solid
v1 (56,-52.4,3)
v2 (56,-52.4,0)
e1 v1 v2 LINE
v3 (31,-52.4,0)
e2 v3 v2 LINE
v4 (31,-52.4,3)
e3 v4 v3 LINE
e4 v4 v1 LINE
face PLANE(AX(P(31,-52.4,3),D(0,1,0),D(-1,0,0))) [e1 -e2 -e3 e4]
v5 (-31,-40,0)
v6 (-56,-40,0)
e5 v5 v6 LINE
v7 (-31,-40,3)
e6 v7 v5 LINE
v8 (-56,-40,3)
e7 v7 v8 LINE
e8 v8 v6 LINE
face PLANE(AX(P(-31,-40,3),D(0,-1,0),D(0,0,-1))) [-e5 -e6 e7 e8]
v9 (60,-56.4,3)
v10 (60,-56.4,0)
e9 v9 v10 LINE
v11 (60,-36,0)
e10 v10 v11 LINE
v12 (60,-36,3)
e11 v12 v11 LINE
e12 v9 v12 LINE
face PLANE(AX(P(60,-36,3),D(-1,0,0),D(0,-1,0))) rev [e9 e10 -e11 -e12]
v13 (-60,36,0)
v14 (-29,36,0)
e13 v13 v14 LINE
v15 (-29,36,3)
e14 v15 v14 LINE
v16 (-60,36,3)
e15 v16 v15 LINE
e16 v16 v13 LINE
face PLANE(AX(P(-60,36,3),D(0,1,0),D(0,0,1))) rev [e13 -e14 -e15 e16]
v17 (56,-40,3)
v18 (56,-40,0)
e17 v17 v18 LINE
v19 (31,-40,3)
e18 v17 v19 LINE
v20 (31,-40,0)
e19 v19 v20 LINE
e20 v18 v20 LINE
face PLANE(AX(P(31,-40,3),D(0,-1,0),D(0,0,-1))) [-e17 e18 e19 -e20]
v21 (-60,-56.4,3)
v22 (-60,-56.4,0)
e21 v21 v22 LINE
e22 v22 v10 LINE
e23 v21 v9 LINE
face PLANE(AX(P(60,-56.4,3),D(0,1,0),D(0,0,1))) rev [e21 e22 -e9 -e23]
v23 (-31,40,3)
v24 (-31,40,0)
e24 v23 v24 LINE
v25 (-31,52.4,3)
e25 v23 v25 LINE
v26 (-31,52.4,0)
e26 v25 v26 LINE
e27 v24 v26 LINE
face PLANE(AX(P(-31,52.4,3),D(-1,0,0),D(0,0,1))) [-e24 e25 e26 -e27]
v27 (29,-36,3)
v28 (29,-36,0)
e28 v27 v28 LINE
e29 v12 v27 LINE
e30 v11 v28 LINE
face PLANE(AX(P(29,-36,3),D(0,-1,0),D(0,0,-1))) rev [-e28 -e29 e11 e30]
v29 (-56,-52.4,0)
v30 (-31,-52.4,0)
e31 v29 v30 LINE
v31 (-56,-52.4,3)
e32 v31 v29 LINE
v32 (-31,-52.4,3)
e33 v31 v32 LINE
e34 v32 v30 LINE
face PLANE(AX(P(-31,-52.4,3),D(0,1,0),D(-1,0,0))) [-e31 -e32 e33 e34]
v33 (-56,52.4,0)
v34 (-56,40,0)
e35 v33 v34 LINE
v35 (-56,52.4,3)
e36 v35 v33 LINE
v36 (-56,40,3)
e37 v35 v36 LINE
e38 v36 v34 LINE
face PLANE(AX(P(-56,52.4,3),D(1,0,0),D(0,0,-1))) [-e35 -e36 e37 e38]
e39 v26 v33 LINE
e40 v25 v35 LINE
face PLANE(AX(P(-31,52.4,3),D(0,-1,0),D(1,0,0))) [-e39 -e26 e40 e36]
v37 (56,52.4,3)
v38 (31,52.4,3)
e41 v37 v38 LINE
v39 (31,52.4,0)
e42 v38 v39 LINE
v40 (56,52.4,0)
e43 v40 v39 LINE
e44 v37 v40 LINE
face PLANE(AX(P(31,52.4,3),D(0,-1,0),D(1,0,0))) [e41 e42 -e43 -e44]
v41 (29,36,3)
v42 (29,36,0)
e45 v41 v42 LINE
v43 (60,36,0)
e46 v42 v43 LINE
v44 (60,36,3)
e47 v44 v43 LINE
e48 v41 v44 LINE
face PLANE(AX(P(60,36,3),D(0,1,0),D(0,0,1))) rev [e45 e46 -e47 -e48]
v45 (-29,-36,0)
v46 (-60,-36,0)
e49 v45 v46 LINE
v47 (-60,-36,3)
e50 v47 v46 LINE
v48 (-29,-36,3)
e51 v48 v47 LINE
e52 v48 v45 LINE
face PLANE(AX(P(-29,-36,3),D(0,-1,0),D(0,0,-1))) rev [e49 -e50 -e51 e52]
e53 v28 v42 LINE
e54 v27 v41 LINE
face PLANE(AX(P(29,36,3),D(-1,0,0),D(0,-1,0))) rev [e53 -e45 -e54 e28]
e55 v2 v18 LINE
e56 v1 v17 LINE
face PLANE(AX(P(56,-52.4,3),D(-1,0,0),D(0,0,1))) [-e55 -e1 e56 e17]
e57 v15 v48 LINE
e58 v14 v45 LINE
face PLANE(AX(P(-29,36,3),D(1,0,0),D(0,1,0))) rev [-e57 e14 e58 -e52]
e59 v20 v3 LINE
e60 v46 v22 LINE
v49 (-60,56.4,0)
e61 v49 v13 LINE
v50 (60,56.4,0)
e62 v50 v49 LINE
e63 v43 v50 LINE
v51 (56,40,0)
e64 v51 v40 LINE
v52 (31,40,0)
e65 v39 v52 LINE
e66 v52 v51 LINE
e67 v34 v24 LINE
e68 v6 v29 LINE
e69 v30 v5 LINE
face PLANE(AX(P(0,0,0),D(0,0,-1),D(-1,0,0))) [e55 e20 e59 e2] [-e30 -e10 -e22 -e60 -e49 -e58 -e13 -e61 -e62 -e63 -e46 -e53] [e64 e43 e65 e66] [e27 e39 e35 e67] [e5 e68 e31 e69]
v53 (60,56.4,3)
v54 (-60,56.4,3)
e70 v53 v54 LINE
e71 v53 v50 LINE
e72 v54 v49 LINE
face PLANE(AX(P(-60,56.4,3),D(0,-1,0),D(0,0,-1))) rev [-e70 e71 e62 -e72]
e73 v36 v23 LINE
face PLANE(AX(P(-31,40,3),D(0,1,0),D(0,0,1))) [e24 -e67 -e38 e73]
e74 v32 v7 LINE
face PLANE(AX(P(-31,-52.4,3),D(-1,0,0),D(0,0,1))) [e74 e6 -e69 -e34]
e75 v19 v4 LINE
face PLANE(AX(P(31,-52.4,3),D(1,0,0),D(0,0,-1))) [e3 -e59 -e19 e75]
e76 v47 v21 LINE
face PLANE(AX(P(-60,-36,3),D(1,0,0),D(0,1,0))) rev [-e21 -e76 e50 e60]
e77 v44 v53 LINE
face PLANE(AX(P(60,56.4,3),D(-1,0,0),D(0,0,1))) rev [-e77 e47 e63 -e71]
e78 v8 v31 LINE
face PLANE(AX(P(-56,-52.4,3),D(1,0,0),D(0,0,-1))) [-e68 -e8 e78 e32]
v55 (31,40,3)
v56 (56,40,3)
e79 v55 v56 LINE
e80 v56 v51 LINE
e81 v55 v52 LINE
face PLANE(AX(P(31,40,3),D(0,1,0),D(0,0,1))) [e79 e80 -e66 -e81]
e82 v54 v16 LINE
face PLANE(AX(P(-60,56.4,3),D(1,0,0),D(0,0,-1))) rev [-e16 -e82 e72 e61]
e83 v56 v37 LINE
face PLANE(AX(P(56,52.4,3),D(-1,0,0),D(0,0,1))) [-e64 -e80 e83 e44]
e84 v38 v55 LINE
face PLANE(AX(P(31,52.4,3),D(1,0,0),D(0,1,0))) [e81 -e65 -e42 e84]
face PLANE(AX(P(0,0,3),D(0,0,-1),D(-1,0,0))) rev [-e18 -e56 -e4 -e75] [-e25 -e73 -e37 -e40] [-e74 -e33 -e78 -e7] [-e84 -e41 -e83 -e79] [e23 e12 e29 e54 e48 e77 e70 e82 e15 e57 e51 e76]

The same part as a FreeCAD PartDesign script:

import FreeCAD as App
import Part
import Sketcher
from FreeCAD import Vector

doc = App.newDocument("Part")
body = doc.addObject("PartDesign::Body", "Body")

# Sketch on XY plane
sketch1 = body.newObject("Sketcher::SketchObject", "Sketch")
sketch1.AttachmentSupport = (doc.getObject("XY_Plane"), [""])
sketch1.MapMode = "FlatFace"
sketch1.addGeometry([
    Part.LineSegment(Vector(60, 56.4, 0), Vector(-60, 56.4, 0)),  # 0
    Part.LineSegment(Vector(-60, 56.4, 0), Vector(-60, 36, 0)),  # 1
    Part.LineSegment(Vector(-60, 36, 0), Vector(-29, 36, 0)),  # 2
    Part.LineSegment(Vector(-29, 36, 0), Vector(-29, -36, 0)),  # 3
    Part.LineSegment(Vector(-29, -36, 0), Vector(-60, -36, 0)),  # 4
    Part.LineSegment(Vector(-60, -36, 0), Vector(-60, -56.4, 0)),  # 5
    Part.LineSegment(Vector(-60, -56.4, 0), Vector(60, -56.4, 0)),  # 6
    Part.LineSegment(Vector(60, -56.4, 0), Vector(60, -36, 0)),  # 7
    Part.LineSegment(Vector(60, -36, 0), Vector(29, -36, 0)),  # 8
    Part.LineSegment(Vector(29, -36, 0), Vector(29, 36, 0)),  # 9
    Part.LineSegment(Vector(29, 36, 0), Vector(60, 36, 0)),  # 10
    Part.LineSegment(Vector(60, 36, 0), Vector(60, 56.4, 0)),  # 11
    Part.LineSegment(Vector(31, -52.4, 0), Vector(31, -40, 0)),  # 12
    Part.LineSegment(Vector(31, -40, 0), Vector(56, -40, 0)),  # 13
    Part.LineSegment(Vector(56, -40, 0), Vector(56, -52.4, 0)),  # 14
    Part.LineSegment(Vector(56, -52.4, 0), Vector(31, -52.4, 0)),  # 15
    Part.LineSegment(Vector(-56, -52.4, 0), Vector(-56, -40, 0)),  # 16
    Part.LineSegment(Vector(-56, -40, 0), Vector(-31, -40, 0)),  # 17
    Part.LineSegment(Vector(-31, -40, 0), Vector(-31, -52.4, 0)),  # 18
    Part.LineSegment(Vector(-31, -52.4, 0), Vector(-56, -52.4, 0)),  # 19
    Part.LineSegment(Vector(31, 40, 0), Vector(31, 52.4, 0)),  # 20
    Part.LineSegment(Vector(31, 52.4, 0), Vector(56, 52.4, 0)),  # 21
    Part.LineSegment(Vector(56, 52.4, 0), Vector(56, 40, 0)),  # 22
    Part.LineSegment(Vector(56, 40, 0), Vector(31, 40, 0)),  # 23
    Part.LineSegment(Vector(-56, 40, 0), Vector(-56, 52.4, 0)),  # 24
    Part.LineSegment(Vector(-56, 52.4, 0), Vector(-31, 52.4, 0)),  # 25
    Part.LineSegment(Vector(-31, 52.4, 0), Vector(-31, 40, 0)),  # 26
    Part.LineSegment(Vector(-31, 40, 0), Vector(-56, 40, 0)),  # 27
], False)
sketch1.addConstraint([
    Sketcher.Constraint("Coincident", 0, 2, 1, 1),
    Sketcher.Constraint("Coincident", 1, 2, 2, 1),
    Sketcher.Constraint("Coincident", 2, 2, 3, 1),
    Sketcher.Constraint("Coincident", 3, 2, 4, 1),
    Sketcher.Constraint("Coincident", 4, 2, 5, 1),
    Sketcher.Constraint("Coincident", 5, 2, 6, 1),
    Sketcher.Constraint("Coincident", 6, 2, 7, 1),
    Sketcher.Constraint("Coincident", 7, 2, 8, 1),
    Sketcher.Constraint("Coincident", 8, 2, 9, 1),
    Sketcher.Constraint("Coincident", 9, 2, 10, 1),
    Sketcher.Constraint("Coincident", 10, 2, 11, 1),
    Sketcher.Constraint("Coincident", 11, 2, 0, 1),
    Sketcher.Constraint("Coincident", 12, 2, 13, 1),
    Sketcher.Constraint("Coincident", 13, 2, 14, 1),
    Sketcher.Constraint("Coincident", 14, 2, 15, 1),
    Sketcher.Constraint("Coincident", 15, 2, 12, 1),
    Sketcher.Constraint("Coincident", 16, 2, 17, 1),
    Sketcher.Constraint("Coincident", 17, 2, 18, 1),
    Sketcher.Constraint("Coincident", 18, 2, 19, 1),
    Sketcher.Constraint("Coincident", 19, 2, 16, 1),
    Sketcher.Constraint("Coincident", 20, 2, 21, 1),
    Sketcher.Constraint("Coincident", 21, 2, 22, 1),
    Sketcher.Constraint("Coincident", 22, 2, 23, 1),
    Sketcher.Constraint("Coincident", 23, 2, 20, 1),
    Sketcher.Constraint("Coincident", 24, 2, 25, 1),
    Sketcher.Constraint("Coincident", 25, 2, 26, 1),
    Sketcher.Constraint("Coincident", 26, 2, 27, 1),
    Sketcher.Constraint("Coincident", 27, 2, 24, 1),
    Sketcher.Constraint("Horizontal", 0),
    Sketcher.Constraint("Vertical", 1),
    Sketcher.Constraint("Horizontal", 2),
    Sketcher.Constraint("Vertical", 3),
    Sketcher.Constraint("Horizontal", 4),
    Sketcher.Constraint("Vertical", 5),
    Sketcher.Constraint("Horizontal", 6),
    Sketcher.Constraint("Vertical", 7),
    Sketcher.Constraint("Horizontal", 8),
    Sketcher.Constraint("Vertical", 9),
    Sketcher.Constraint("Horizontal", 10),
    Sketcher.Constraint("Vertical", 11),
    Sketcher.Constraint("Vertical", 12),
    Sketcher.Constraint("Horizontal", 13),
    Sketcher.Constraint("Vertical", 14),
    Sketcher.Constraint("Horizontal", 15),
    Sketcher.Constraint("Vertical", 16),
    Sketcher.Constraint("Horizontal", 17),
    Sketcher.Constraint("Vertical", 18),
    Sketcher.Constraint("Horizontal", 19),
    Sketcher.Constraint("Vertical", 20),
    Sketcher.Constraint("Horizontal", 21),
    Sketcher.Constraint("Vertical", 22),
    Sketcher.Constraint("Horizontal", 23),
    Sketcher.Constraint("Vertical", 24),
    Sketcher.Constraint("Horizontal", 25),
    Sketcher.Constraint("Vertical", 26),
    Sketcher.Constraint("Horizontal", 27),
    Sketcher.Constraint("Symmetric", 0, 2, 6, 2, -1, 1),
    Sketcher.Constraint("Symmetric", 2, 2, 8, 2, -1, 1),
    Sketcher.Constraint("Symmetric", 4, 2, 10, 2, -1, 1),
    Sketcher.Constraint("Symmetric", 18, 2, 20, 2, -1, 1),
    Sketcher.Constraint("Symmetric", 16, 2, 22, 2, -1, 1),
    Sketcher.Constraint("Symmetric", 14, 2, 24, 2, -1, 1),
    Sketcher.Constraint("Symmetric", 12, 2, 26, 2, -1, 1),
    Sketcher.Constraint("Symmetric", 4, 2, 7, 2, -2),
    Sketcher.Constraint("Symmetric", 13, 2, 16, 2, -2),
    Sketcher.Constraint("Symmetric", 15, 2, 18, 2, -2),
    Sketcher.Constraint("DistanceX", 0, 2, 0, 1, 120.0),
    Sketcher.Constraint("DistanceX", 2, 1, 2, 2, 31.0),
    Sketcher.Constraint("DistanceX", 13, 1, 13, 2, 25.0),
    Sketcher.Constraint("DistanceY", 3, 2, 3, 1, 72.0),
    Sketcher.Constraint("DistanceY", 1, 2, 1, 1, 20.4),
    Sketcher.Constraint("DistanceY", 12, 1, 12, 2, 12.4),
    Sketcher.Constraint("DistanceX", -1, 1, 12, 2, 31.0),
    Sketcher.Constraint("DistanceY", 12, 2, -1, 1, 40.0),
])
pad1 = body.newObject("PartDesign::Pad", "Pad")
pad1.Profile = sketch1
pad1.Length = 3

doc.recompute()
